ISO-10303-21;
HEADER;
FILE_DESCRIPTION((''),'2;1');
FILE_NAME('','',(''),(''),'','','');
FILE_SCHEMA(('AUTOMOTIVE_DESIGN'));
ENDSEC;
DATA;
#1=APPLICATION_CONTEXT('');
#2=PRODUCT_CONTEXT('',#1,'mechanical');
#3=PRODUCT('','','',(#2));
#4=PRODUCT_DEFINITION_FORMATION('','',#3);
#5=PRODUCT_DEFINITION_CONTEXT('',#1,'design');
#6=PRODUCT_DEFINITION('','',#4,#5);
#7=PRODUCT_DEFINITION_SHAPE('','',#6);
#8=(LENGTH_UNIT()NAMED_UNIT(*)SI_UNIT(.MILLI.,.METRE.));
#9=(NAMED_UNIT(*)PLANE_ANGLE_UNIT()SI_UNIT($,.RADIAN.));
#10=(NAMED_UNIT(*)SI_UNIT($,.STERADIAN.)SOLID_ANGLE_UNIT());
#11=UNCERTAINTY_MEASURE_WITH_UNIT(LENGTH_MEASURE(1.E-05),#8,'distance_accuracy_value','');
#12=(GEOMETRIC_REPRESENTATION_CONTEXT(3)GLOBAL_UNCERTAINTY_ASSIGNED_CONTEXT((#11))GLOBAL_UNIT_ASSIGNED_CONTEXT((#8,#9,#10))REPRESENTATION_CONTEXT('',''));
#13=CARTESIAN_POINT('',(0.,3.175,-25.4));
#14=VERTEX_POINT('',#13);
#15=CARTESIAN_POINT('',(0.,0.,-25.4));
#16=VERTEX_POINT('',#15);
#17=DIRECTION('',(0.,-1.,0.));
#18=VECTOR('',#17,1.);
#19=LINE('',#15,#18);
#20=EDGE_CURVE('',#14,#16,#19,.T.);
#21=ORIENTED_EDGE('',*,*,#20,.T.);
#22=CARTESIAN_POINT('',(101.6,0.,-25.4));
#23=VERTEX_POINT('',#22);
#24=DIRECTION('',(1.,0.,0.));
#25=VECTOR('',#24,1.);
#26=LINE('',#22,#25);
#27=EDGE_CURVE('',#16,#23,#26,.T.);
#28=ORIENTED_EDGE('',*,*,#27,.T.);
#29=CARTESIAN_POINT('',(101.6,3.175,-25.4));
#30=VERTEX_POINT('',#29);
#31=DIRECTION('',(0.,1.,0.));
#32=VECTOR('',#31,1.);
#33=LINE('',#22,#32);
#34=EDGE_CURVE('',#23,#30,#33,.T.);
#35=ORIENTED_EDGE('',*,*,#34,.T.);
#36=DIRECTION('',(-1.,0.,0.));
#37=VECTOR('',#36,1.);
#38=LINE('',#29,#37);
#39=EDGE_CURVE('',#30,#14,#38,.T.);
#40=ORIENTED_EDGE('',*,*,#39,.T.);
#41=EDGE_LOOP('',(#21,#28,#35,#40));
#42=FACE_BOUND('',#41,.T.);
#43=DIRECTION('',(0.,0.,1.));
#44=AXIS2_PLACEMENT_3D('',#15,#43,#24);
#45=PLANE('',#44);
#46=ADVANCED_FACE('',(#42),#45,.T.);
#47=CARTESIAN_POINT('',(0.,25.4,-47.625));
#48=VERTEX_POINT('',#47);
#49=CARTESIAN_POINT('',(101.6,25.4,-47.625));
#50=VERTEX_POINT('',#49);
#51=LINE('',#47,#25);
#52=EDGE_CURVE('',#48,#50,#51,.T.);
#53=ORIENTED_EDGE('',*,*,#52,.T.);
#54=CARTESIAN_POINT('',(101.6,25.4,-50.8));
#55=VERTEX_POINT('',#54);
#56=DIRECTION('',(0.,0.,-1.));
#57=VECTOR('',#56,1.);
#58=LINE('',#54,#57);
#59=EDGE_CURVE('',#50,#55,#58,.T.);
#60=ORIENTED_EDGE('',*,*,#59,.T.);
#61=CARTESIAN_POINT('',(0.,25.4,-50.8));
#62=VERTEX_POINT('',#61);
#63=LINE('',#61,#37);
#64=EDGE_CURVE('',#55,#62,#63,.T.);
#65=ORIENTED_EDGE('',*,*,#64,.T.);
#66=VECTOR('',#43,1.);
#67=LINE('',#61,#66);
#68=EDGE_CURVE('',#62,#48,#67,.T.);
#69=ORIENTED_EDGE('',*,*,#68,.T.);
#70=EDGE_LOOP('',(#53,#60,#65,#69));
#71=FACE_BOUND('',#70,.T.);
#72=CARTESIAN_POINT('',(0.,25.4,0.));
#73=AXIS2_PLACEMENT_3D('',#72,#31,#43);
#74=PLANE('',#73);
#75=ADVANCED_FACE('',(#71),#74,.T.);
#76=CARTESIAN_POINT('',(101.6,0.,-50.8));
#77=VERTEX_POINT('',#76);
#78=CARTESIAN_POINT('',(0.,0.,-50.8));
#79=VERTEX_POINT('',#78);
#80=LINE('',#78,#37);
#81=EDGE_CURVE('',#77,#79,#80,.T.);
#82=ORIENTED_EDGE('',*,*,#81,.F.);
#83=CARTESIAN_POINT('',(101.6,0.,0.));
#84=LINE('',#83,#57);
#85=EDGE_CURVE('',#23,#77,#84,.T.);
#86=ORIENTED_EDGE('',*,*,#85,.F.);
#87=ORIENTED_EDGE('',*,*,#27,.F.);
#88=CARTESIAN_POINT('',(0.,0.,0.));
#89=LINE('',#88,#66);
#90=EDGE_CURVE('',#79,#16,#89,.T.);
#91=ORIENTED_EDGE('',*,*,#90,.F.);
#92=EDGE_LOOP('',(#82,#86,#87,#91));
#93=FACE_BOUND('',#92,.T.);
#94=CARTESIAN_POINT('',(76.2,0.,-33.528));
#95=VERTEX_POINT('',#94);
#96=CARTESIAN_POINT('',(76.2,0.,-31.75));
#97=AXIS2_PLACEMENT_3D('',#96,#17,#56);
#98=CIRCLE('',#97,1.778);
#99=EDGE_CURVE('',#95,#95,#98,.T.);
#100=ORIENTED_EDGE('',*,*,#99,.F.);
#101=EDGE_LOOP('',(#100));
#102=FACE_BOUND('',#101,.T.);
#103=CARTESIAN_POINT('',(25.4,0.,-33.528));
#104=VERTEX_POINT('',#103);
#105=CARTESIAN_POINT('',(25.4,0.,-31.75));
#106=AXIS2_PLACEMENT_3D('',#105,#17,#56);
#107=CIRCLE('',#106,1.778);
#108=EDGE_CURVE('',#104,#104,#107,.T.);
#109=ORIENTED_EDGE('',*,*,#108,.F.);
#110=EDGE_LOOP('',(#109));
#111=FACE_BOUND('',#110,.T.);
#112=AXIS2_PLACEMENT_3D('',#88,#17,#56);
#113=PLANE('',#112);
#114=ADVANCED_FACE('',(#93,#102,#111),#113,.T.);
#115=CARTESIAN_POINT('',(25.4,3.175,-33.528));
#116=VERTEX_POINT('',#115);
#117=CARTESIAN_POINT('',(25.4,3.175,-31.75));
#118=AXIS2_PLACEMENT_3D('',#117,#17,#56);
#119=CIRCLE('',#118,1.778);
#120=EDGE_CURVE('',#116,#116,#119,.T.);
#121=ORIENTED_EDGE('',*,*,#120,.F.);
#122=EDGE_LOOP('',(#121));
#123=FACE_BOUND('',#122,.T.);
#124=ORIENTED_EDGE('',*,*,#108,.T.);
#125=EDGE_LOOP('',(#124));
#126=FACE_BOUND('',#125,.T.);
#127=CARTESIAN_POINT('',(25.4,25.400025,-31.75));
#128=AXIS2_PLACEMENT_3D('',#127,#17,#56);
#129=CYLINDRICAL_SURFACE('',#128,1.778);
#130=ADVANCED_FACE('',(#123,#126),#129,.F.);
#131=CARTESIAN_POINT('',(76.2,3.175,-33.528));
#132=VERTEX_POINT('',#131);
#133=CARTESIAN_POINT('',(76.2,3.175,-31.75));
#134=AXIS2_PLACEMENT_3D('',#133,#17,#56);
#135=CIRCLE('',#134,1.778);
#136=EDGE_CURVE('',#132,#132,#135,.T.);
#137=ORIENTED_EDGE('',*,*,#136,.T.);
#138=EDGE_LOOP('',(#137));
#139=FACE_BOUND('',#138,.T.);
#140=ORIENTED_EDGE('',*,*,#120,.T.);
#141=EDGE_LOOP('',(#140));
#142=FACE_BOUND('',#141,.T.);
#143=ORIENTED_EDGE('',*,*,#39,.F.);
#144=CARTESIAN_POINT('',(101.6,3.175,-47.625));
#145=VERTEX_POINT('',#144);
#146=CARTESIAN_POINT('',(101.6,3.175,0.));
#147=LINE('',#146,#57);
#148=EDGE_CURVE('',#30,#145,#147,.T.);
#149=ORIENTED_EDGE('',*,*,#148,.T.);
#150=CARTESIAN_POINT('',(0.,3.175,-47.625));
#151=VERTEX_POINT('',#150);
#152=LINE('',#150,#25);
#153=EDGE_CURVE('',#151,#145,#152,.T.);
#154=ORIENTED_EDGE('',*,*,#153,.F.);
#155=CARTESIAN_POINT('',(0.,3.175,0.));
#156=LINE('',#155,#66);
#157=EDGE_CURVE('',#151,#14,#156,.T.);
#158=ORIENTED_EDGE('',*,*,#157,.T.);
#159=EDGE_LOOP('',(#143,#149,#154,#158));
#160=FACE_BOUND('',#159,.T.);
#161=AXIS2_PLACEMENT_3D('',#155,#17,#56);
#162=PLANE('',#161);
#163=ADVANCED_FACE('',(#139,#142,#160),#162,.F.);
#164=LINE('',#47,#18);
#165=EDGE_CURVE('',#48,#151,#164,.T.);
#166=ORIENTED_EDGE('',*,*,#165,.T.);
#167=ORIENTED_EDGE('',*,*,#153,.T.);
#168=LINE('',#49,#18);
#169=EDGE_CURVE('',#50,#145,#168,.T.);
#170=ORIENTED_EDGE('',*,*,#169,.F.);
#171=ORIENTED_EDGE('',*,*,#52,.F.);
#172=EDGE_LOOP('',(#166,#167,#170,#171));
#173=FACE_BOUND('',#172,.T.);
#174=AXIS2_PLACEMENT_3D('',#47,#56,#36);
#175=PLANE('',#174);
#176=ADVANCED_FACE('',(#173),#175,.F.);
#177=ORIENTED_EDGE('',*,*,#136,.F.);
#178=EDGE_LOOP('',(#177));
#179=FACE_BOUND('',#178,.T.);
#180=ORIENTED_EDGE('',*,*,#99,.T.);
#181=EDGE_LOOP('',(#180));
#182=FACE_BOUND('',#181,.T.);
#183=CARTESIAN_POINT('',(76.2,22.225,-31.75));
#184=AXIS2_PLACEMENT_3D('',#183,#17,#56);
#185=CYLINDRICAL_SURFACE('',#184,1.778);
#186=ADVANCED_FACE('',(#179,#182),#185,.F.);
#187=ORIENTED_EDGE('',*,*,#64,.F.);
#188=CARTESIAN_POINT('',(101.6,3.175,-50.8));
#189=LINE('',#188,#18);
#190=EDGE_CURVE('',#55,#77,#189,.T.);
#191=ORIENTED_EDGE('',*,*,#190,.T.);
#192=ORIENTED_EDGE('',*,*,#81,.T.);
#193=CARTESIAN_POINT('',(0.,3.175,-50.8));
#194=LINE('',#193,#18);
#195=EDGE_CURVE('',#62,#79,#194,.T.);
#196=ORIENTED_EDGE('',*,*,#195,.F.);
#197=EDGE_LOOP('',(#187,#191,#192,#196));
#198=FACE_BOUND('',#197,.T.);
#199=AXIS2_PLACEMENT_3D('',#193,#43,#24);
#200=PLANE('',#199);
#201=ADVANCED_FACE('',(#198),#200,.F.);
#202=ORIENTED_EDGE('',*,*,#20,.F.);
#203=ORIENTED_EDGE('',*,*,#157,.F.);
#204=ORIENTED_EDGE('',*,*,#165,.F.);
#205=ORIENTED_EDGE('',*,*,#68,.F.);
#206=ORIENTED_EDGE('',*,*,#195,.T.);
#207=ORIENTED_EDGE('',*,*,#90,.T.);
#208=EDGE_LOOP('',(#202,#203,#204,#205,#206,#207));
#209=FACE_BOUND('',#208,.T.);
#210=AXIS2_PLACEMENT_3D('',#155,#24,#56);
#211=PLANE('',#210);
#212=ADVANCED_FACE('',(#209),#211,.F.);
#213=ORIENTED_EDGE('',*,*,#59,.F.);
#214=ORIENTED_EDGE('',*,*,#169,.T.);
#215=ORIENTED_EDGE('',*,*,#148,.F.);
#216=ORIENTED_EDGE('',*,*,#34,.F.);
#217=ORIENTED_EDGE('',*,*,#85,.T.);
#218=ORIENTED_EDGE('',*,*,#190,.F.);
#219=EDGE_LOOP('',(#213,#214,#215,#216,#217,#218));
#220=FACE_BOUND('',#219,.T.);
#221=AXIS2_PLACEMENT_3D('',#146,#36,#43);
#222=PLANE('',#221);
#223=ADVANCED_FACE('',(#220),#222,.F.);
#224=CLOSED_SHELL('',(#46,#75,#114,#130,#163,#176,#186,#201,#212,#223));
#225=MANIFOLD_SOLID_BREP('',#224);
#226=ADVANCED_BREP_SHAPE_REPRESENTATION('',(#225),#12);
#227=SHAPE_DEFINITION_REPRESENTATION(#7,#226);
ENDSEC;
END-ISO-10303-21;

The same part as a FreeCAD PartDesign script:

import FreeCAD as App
import Part
import Sketcher
from FreeCAD import Vector
Q = App.Units.Quantity

doc = App.newDocument("Part")
body = doc.addObject("PartDesign::Body", "Body")

sketch1 = doc.addObject("Sketcher::SketchObject", "Sketch")
body.addObject(sketch1)
sketch1.AttachmentSupport = (doc.XZ_Plane, [""])
sketch1.MapMode = "FlatFace"
sketch1.addGeometry(Part.LineSegment(Vector(0, -51, 0), Vector(0, 0, 0)), False)
sketch1.addGeometry(Part.LineSegment(Vector(0, 0, 0), Vector(102, 0, 0)), False)
sketch1.addGeometry(Part.LineSegment(Vector(102, 0, 0), Vector(102, -51, 0)), False)
sketch1.addGeometry(Part.LineSegment(Vector(102, -51, 0), Vector(0, -51, 0)), False)
sketch1.addConstraint(Sketcher.Constraint("Coincident", 0, 2, 1, 1))
sketch1.addConstraint(Sketcher.Constraint("Coincident", 1, 2, 2, 1))
sketch1.addConstraint(Sketcher.Constraint("Coincident", 2, 2, 3, 1))
sketch1.addConstraint(Sketcher.Constraint("Coincident", 3, 2, 0, 1))
sketch1.addConstraint(Sketcher.Constraint("Vertical", 0))
sketch1.addConstraint(Sketcher.Constraint("Horizontal", 1))
sketch1.addConstraint(Sketcher.Constraint("Vertical", 2))
sketch1.addConstraint(Sketcher.Constraint("Horizontal", 3))
sketch1.addConstraint(Sketcher.Constraint("Coincident", 0, 2, -1, 1))
sketch1.addConstraint(Sketcher.Constraint("DistanceX", 1, 1, 1, 2, Q("4 in")))
sketch1.addConstraint(Sketcher.Constraint("DistanceY", 0, 1, 0, 2, Q("2 in")))
pad1 = doc.addObject("PartDesign::Pad", "Pad")
body.addObject(pad1)
pad1.Profile = sketch1
pad1.Length = Q("0.125 in")
pad1.Reversed = True

sketch2 = doc.addObject("Sketcher::SketchObject", "Sketch001")
body.addObject(sketch2)
sketch2.AttachmentSupport = (doc.XZ_Plane, [""])
sketch2.MapMode = "FlatFace"
sketch2.AttachmentOffset = App.Placement(Vector(0, 0, -0.125 * 25.4), App.Rotation())
sketch2.addGeometry(Part.LineSegment(Vector(0, -50.8, 0), Vector(0, -47.6, 0)), False)
sketch2.addGeometry(Part.LineSegment(Vector(0, -47.6, 0), Vector(101.6, -47.6, 0)), False)
sketch2.addGeometry(Part.LineSegment(Vector(101.6, -47.6, 0), Vector(101.6, -50.8, 0)), False)
sketch2.addGeometry(Part.LineSegment(Vector(101.6, -50.8, 0), Vector(0, -50.8, 0)), False)
sketch2.addConstraint(Sketcher.Constraint("Coincident", 0, 2, 1, 1))
sketch2.addConstraint(Sketcher.Constraint("Coincident", 1, 2, 2, 1))
sketch2.addConstraint(Sketcher.Constraint("Coincident", 2, 2, 3, 1))
sketch2.addConstraint(Sketcher.Constraint("Coincident", 3, 2, 0, 1))
sketch2.addConstraint(Sketcher.Constraint("Vertical", 0))
sketch2.addConstraint(Sketcher.Constraint("Horizontal", 1))
sketch2.addConstraint(Sketcher.Constraint("Vertical", 2))
sketch2.addConstraint(Sketcher.Constraint("Horizontal", 3))
sketch2.addConstraint(Sketcher.Constraint("PointOnObject", 0, 2, -2))
sketch2.addConstraint(Sketcher.Constraint("DistanceX", 1, 1, 1, 2, Q("4 in")))
sketch2.addConstraint(Sketcher.Constraint("DistanceY", 2, 2, -1, 1, Q("2 in")))
sketch2.addConstraint(Sketcher.Constraint("DistanceY", 0, 1, 0, 2, Q("0.125 in")))
pad2 = doc.addObject("PartDesign::Pad", "Pad001")
body.addObject(pad2)
pad2.Profile = sketch2
pad2.Length = Q("0.875 in")
pad2.Reversed = True

sketch3 = doc.addObject("Sketcher::SketchObject", "Sketch002")
body.addObject(sketch3)
sketch3.AttachmentSupport = (doc.XZ_Plane, [""])
sketch3.MapMode = "FlatFace"
sketch3.addGeometry(Part.Circle(Vector(25.4, -31.8, 0), Vector(0, 0, 1), 1.8), False)
sketch3.addConstraint(Sketcher.Constraint("Diameter", 0, Q("0.14 in")))
sketch3.addConstraint(Sketcher.Constraint("DistanceX", -1, 1, 0, 3, Q("1 in")))
sketch3.addConstraint(Sketcher.Constraint("DistanceY", 0, 3, -1, 1, Q("1.25 in")))
pocket1 = doc.addObject("PartDesign::Pocket", "Pocket")
body.addObject(pocket1)
pocket1.Profile = sketch3
pocket1.Type = "ThroughAll"

sketch4 = doc.addObject("Sketcher::SketchObject", "Sketch003")
body.addObject(sketch4)
sketch4.AttachmentSupport = (doc.XZ_Plane, [""])
sketch4.MapMode = "FlatFace"
sketch4.addGeometry(Part.Circle(Vector(25.4, -31.8, 0), Vector(0, 0, 1), 1.8), False)
sketch4.addGeometry(Part.Circle(Vector(76.2, -31.8, 0), Vector(0, 0, 1), 1.8), False)
sketch4.addConstraint(Sketcher.Constraint("Equal", 0, 1))
sketch4.addConstraint(Sketcher.Constraint("Horizontal", 0, 3, 1, 3))
sketch4.addConstraint(Sketcher.Constraint("Diameter", 0, Q("0.14 in")))
sketch4.addConstraint(Sketcher.Constraint("DistanceX", -1, 1, 0, 3, Q("1 in")))
sketch4.addConstraint(Sketcher.Constraint("DistanceX", -1, 1, 1, 3, Q("3 in")))
sketch4.addConstraint(Sketcher.Constraint("DistanceY", 0, 3, -1, 1, Q("1.25 in")))
pocket2 = doc.addObject("PartDesign::Pocket", "Pocket001")
body.addObject(pocket2)
pocket2.Profile = sketch4
pocket2.Length = Q("0.875 in")

sketch5 = doc.addObject("Sketcher::SketchObject", "Sketch004")
body.addObject(sketch5)
sketch5.AttachmentSupport = (doc.XY_Plane, [""])
sketch5.MapMode = "FlatFace"
sketch5.addGeometry(Part.LineSegment(Vector(0, 3.2, 0), Vector(0, 0, 0)), False)
sketch5.addGeometry(Part.LineSegment(Vector(0, 0, 0), Vector(101.6, 0, 0)), False)
sketch5.addGeometry(Part.LineSegment(Vector(101.6, 0, 0), Vector(101.6, 3.2, 0)), False)
sketch5.addGeometry(Part.LineSegment(Vector(101.6, 3.2, 0), Vector(0, 3.2, 0)), False)
sketch5.addConstraint(Sketcher.Constraint("Coincident", 0, 2, 1, 1))
sketch5.addConstraint(Sketcher.Constraint("Coincident", 1, 2, 2, 1))
sketch5.addConstraint(Sketcher.Constraint("Coincident", 2, 2, 3, 1))
sketch5.addConstraint(Sketcher.Constraint("Coincident", 3, 2, 0, 1))
sketch5.addConstraint(Sketcher.Constraint("Vertical", 0))
sketch5.addConstraint(Sketcher.Constraint("Horizontal", 1))
sketch5.addConstraint(Sketcher.Constraint("Vertical", 2))
sketch5.addConstraint(Sketcher.Constraint("Horizontal", 3))
sketch5.addConstraint(Sketcher.Constraint("Coincident", 0, 2, -1, 1))
sketch5.addConstraint(Sketcher.Constraint("DistanceX", 1, 1, 1, 2, Q("4 in")))
sketch5.addConstraint(Sketcher.Constraint("DistanceY", 0, 2, 0, 1, Q("0.125 in")))
pocket3 = doc.addObject("PartDesign::Pocket", "Pocket002")
body.addObject(pocket3)
pocket3.Profile = sketch5
pocket3.Length = Q("1 in")

doc.recompute()
